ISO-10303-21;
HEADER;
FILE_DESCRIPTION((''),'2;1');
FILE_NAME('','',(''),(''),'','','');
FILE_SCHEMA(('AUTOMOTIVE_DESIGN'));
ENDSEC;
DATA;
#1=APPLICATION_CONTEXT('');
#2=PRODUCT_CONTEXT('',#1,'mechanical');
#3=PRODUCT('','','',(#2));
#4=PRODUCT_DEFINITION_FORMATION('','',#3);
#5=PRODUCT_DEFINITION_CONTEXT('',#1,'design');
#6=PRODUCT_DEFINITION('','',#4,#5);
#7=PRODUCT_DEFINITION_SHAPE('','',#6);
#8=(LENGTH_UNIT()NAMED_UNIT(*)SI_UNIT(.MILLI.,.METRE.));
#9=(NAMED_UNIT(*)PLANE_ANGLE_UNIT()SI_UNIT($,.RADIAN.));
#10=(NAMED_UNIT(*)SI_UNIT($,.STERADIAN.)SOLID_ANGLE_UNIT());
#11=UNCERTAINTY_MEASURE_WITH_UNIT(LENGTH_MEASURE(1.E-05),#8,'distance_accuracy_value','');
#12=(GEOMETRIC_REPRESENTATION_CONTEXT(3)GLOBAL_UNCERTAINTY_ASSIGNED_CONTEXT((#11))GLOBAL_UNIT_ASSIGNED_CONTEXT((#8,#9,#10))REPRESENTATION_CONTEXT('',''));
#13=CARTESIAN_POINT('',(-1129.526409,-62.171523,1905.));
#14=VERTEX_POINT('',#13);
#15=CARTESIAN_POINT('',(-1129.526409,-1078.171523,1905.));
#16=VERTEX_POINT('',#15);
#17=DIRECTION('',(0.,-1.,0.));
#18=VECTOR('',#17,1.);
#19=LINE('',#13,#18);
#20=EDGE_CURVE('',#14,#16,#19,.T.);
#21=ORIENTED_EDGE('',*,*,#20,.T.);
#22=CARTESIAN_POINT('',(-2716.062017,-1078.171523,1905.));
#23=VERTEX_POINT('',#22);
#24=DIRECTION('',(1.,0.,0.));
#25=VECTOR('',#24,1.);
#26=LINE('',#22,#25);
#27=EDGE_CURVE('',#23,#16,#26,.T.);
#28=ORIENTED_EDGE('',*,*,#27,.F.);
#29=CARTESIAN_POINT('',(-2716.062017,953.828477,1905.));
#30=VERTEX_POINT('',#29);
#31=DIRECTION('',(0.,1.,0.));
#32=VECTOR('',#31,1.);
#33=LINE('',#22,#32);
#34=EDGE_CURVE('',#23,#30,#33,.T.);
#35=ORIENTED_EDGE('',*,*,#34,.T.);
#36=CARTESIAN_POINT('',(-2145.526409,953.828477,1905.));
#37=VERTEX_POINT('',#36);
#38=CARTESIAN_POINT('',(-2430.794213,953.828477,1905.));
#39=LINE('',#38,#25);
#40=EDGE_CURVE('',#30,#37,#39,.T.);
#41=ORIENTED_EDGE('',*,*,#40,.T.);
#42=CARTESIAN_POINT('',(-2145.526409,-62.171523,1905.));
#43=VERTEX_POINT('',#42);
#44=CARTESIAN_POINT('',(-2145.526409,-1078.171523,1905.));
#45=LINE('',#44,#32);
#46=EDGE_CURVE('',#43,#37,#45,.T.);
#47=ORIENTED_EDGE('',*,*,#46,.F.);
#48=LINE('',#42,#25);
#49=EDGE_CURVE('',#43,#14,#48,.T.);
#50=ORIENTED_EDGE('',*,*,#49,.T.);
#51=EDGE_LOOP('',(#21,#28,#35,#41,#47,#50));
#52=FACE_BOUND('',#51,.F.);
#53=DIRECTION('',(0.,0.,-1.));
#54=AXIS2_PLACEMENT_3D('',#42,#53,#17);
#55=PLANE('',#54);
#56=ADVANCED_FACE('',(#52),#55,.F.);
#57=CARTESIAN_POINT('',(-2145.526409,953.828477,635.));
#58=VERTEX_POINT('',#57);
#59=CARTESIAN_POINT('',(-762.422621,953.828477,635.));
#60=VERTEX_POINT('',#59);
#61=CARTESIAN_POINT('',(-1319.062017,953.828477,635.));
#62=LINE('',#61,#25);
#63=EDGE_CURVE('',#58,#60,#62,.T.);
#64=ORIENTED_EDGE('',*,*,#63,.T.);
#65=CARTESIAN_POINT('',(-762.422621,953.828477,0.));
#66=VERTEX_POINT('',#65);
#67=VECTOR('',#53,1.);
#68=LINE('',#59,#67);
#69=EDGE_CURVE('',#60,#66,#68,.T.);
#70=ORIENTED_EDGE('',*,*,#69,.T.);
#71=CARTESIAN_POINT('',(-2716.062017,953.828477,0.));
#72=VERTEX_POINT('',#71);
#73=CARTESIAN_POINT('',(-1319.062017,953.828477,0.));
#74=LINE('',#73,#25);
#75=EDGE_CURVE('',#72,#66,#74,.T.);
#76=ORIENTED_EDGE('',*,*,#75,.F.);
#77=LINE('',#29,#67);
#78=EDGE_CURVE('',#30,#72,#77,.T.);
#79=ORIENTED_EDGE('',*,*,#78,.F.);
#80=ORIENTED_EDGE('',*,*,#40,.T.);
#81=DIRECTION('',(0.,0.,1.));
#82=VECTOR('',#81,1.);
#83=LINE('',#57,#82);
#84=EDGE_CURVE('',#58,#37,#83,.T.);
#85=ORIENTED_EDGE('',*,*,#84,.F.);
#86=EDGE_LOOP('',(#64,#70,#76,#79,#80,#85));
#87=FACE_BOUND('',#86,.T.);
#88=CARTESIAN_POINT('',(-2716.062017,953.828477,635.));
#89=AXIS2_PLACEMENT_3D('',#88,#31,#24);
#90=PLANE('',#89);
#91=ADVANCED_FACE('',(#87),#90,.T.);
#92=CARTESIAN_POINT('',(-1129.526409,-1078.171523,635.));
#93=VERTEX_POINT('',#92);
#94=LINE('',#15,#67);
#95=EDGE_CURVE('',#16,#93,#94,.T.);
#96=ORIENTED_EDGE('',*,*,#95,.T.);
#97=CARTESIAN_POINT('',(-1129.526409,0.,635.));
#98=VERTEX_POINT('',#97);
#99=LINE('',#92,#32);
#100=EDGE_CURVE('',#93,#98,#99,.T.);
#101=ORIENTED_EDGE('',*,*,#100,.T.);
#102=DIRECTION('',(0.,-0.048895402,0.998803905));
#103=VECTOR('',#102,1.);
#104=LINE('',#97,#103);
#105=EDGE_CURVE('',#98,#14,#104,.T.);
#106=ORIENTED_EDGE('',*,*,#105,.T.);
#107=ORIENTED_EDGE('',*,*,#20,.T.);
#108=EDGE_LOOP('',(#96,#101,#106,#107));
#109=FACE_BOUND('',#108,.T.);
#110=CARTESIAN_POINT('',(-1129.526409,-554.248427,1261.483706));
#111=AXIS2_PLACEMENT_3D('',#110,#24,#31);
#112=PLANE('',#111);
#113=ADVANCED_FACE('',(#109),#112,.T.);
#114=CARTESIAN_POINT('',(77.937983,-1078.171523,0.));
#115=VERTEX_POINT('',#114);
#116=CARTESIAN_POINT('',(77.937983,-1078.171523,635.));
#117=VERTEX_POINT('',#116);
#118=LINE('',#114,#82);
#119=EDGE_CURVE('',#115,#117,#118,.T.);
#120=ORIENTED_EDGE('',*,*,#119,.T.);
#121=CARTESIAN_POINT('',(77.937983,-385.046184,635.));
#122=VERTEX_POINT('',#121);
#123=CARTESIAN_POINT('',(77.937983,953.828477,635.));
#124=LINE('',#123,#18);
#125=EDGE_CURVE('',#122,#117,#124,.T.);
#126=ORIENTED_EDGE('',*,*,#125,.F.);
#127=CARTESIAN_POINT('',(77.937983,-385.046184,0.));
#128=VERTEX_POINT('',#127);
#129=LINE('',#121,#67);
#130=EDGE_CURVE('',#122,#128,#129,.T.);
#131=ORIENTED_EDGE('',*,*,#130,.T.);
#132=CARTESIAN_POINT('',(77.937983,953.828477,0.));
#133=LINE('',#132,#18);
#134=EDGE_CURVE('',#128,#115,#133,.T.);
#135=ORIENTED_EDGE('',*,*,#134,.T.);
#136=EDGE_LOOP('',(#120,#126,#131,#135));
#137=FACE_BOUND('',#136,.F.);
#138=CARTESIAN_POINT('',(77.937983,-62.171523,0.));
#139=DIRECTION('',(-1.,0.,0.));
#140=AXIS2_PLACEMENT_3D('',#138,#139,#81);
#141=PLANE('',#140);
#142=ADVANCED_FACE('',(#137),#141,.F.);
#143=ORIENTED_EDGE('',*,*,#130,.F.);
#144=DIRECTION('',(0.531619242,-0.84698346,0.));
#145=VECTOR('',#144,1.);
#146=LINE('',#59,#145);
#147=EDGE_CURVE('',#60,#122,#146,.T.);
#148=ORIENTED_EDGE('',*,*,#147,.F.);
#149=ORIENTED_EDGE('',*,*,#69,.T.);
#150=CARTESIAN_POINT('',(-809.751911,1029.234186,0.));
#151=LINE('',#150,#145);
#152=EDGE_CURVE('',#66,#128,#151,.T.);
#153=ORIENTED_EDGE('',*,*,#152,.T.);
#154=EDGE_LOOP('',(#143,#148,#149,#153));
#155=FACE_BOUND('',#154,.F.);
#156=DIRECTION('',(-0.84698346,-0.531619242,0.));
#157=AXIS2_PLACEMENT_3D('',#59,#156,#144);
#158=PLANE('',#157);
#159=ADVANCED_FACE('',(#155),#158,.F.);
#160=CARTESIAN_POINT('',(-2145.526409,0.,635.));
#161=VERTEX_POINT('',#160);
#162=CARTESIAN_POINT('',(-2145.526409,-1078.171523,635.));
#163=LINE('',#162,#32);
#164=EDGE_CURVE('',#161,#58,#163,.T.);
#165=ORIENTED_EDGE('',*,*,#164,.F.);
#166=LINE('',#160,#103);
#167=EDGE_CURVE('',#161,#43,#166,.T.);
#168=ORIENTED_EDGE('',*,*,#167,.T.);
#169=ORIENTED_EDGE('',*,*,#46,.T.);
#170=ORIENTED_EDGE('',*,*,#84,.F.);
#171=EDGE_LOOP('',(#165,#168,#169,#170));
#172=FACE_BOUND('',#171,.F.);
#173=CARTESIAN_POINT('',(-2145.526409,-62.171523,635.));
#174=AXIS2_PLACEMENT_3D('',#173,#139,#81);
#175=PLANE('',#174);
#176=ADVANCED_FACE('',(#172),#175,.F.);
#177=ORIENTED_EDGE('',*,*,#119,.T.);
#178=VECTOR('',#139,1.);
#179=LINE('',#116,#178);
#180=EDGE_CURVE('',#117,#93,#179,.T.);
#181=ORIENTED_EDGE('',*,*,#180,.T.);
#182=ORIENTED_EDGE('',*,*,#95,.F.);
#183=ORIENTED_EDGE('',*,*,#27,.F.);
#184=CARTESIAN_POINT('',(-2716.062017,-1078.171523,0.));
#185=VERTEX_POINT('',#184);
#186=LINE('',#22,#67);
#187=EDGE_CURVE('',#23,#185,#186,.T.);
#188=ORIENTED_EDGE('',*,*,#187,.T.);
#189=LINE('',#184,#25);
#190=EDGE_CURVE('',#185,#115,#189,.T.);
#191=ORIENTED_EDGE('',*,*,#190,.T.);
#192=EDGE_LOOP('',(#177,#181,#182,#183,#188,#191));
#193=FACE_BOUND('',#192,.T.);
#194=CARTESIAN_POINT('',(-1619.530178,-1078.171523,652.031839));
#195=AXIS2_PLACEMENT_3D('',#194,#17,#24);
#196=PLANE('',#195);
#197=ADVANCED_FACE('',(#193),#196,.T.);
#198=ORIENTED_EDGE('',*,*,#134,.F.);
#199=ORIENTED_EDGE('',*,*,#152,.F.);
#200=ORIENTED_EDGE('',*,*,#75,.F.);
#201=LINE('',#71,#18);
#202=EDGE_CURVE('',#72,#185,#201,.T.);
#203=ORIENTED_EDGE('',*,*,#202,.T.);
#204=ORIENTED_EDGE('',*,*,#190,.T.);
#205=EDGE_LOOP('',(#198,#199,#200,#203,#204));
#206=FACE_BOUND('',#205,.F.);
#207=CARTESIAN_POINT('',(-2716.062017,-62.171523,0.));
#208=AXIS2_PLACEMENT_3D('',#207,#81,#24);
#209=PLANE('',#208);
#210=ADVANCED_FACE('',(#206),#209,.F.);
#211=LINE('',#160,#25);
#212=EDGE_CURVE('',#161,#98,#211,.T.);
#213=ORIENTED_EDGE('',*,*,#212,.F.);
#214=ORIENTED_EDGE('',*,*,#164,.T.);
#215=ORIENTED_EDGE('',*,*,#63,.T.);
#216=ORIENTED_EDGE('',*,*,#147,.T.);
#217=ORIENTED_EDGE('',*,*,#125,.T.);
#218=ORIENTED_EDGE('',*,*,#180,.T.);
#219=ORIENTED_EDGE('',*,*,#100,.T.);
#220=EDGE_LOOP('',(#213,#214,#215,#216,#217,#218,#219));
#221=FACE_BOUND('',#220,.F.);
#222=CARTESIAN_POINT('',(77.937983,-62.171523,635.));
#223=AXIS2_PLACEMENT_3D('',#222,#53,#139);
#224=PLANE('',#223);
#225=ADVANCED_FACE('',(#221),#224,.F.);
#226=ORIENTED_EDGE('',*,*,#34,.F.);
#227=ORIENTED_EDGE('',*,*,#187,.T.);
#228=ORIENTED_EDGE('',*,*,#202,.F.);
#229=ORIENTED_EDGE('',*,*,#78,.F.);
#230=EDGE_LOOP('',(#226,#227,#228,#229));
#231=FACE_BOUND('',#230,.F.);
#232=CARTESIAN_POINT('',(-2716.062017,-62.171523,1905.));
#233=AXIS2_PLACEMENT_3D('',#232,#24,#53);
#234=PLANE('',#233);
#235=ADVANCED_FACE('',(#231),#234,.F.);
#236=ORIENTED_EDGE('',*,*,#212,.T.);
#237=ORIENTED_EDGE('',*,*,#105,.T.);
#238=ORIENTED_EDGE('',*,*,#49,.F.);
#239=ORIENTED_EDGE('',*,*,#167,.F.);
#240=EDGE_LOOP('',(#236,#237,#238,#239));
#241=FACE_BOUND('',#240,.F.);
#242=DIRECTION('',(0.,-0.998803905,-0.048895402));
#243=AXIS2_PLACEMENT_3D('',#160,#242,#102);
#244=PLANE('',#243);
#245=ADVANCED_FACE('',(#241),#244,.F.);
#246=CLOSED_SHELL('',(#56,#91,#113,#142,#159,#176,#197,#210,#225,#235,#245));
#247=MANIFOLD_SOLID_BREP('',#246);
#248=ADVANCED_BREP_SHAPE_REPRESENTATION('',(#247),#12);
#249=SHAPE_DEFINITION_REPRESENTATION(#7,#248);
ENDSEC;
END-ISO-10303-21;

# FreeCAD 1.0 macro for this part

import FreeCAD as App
import Part
import Sketcher

V = App.Vector
Q = App.Units.Quantity


def add_polygon(sketch, points):
    """Adds a closed chain of lines whose ends are joined by coincident constraints."""
    first, n = sketch.GeometryCount, len(points)
    for a, b in zip(points, points[1:] + points[:1]):
        sketch.addGeometry(Part.LineSegment(App.Vector(*a, 0), App.Vector(*b, 0)), False)
    for i in range(n):
        sketch.addConstraint(Sketcher.Constraint("Coincident", first + i, 2, first + (i + 1) % n, 1))

doc = App.newDocument("Part")
params = doc.addObject("Spreadsheet::Sheet", "Params")
for row, (alias, value) in enumerate([
    ("sketch1_width", "110 in"),
    ("sketch1_height", "40 in"),
    ("pad1_length", "25 in"),
    ("sketch2_height", "40 in"),
    ("pad2_length", "50 in"),
    ("sketch3_width", "110 in"),
    ("sketch3_height", "75 in"),
    ("sketch3_height2", "25 in"),
    ("pad3_length", "40 in"),
    ("sketch4_width", "40 in"),
    ("sketch4_height", "50 in"),
    ("pad4_length", "40 in"),
    ("pocket1_length", "100 in"),
], start=1):
    params.set(f"A{row}", alias)
    params.set(f"B{row}", "=" + value)
    params.setAlias(f"B{row}", alias)

body = doc.addObject("PartDesign::Body", "Body")

sketch1 = body.newObject("Sketcher::SketchObject", "Sketch")
sketch1.AttachmentSupport = (doc.getObject("XY_Plane"), [""])
sketch1.MapMode = "FlatFace"
add_polygon(sketch1, [(-2716, 954), (-2716, -62), (78, -62), (78, 954)])
sketch1.addConstraint([
    Sketcher.Constraint("Vertical", 0),
    Sketcher.Constraint("Horizontal", 1),
    Sketcher.Constraint("Vertical", 2),
    Sketcher.Constraint("Horizontal", 3),
    Sketcher.Constraint("DistanceX", 1, 1, 1, 2, Q("110 in")),
    Sketcher.Constraint("DistanceY", 0, 2, 0, 1, Q("40 in")),
    Sketcher.Constraint("DistanceX", 0, 2, -1, 1, Q("2716.062017 mm")),
    Sketcher.Constraint("DistanceY", 0, 2, -1, 1, Q("62.171523 mm")),
])
sketch1.setExpression("Constraints[8]", "Params.sketch1_width")
sketch1.setExpression("Constraints[9]", "Params.sketch1_height")
pad1 = body.newObject("PartDesign::Pad", "Pad")
pad1.Profile = sketch1
pad1.setExpression("Length", "Params.pad1_length")

sketch2 = body.newObject("Sketcher::SketchObject", "Sketch001")
sketch2.AttachmentSupport = (doc.getObject("XY_Plane"), [""])
sketch2.MapMode = "FlatFace"
sketch2.AttachmentOffset = App.Placement(V(0, 0, 25 * 25.4), App.Rotation())
add_polygon(sketch2, [(-2716, 954), (-2716, -62), (-2146, -62), (-2146, 954)])
sketch2.addConstraint([
    Sketcher.Constraint("Vertical", 0),
    Sketcher.Constraint("Horizontal", 1),
    Sketcher.Constraint("Vertical", 2),
    Sketcher.Constraint("Horizontal", 3),
    Sketcher.Constraint("DistanceY", 0, 2, 0, 1, Q("40 in")),
    Sketcher.Constraint("DistanceX", 1, 1, 1, 2, Q("570.535608 mm")),
    Sketcher.Constraint("DistanceX", 1, 2, -1, 1, Q("2145.526409 mm")),
    Sketcher.Constraint("DistanceY", 0, 2, -1, 1, Q("62.171523 mm")),
])
sketch2.setExpression("Constraints[8]", "Params.sketch2_height")
pad2 = body.newObject("PartDesign::Pad", "Pad001")
pad2.Profile = sketch2
pad2.setExpression("Length", "Params.pad2_length")

sketch3 = body.newObject("Sketcher::SketchObject", "Sketch002")
sketch3.AttachmentSupport = (doc.getObject("XZ_Plane"), [""])
sketch3.MapMode = "FlatFace"
sketch3.AttachmentOffset = App.Placement(V(0, 0, 62.171523), App.Rotation())
add_polygon(sketch3, [(-2716, 1905), (-2716, 0), (78, 0), (78, 635), (-2146, 635), (-2146, 1905)])
sketch3.addConstraint([
    Sketcher.Constraint("Vertical", 0),
    Sketcher.Constraint("Horizontal", 1),
    Sketcher.Constraint("Vertical", 2),
    Sketcher.Constraint("Horizontal", 3),
    Sketcher.Constraint("Vertical", 4),
    Sketcher.Constraint("Horizontal", 5),
    Sketcher.Constraint("PointOnObject", 0, 2, -1),
    Sketcher.Constraint("DistanceX", 1, 1, 1, 2, Q("110 in")),
    Sketcher.Constraint("DistanceY", 0, 2, 0, 1, Q("75 in")),
    Sketcher.Constraint("DistanceY", 2, 1, 2, 2, Q("25 in")),
    Sketcher.Constraint("DistanceX", 3, 2, 3, 1, Q("2223.464392 mm")),
    Sketcher.Constraint("DistanceX", 3, 2, -1, 1, Q("2145.526409 mm")),
])
sketch3.setExpression("Constraints[13]", "Params.sketch3_width")
sketch3.setExpression("Constraints[14]", "Params.sketch3_height")
sketch3.setExpression("Constraints[15]", "Params.sketch3_height2")
pad3 = body.newObject("PartDesign::Pad", "Pad002")
pad3.Profile = sketch3
pad3.setExpression("Length", "Params.pad3_length")

sketch4 = body.newObject("Sketcher::SketchObject", "Sketch003")
sketch4.AttachmentSupport = (doc.getObject("YZ_Plane"), [""])
sketch4.MapMode = "FlatFace"
sketch4.AttachmentOffset = App.Placement(V(0, 0, -2145.526409), App.Rotation())
add_polygon(sketch4, [(0, 635), (-62, 1905), (-1078, 1905), (-1078, 635)])
sketch4.addConstraint([
    Sketcher.Constraint("Horizontal", 1),
    Sketcher.Constraint("Vertical", 2),
    Sketcher.Constraint("Horizontal", 3),
    Sketcher.Constraint("PointOnObject", 3, 2, -2),
    Sketcher.Constraint("DistanceX", 1, 2, 1, 1, Q("40 in")),
    Sketcher.Constraint("DistanceY", 2, 2, 2, 1, Q("50 in")),
    Sketcher.Constraint("DistanceY", -1, 1, 0, 2, Q("75 in")),
    Sketcher.Constraint("Distance", 0, Q("1271.52086 mm")),
])
sketch4.setExpression("Constraints[8]", "Params.sketch4_width")
sketch4.setExpression("Constraints[9]", "Params.sketch4_height")
pad4 = body.newObject("PartDesign::Pad", "Pad003")
pad4.Profile = sketch4
pad4.setExpression("Length", "Params.pad4_length")

sketch5 = body.newObject("Sketcher::SketchObject", "Sketch004")
sketch5.AttachmentSupport = (doc.getObject("XY_Plane"), [""])
sketch5.MapMode = "FlatFace"
sketch5.AttachmentOffset = App.Placement(V(0, 0, 25 * 25.4), App.Rotation())
add_polygon(sketch5, [(78, 954), (-762, 954), (78, -385)])
sketch5.addConstraint([
    Sketcher.Constraint("Horizontal", 0),
    Sketcher.Constraint("Vertical", 2),
    Sketcher.Constraint("DistanceY", 2, 1, 2, 2, Q("1338.874661 mm")),
    Sketcher.Constraint("Distance", 1, Q("1580.75656 mm")),
    Sketcher.Constraint("DistanceX", 0, 2, -1, 1, Q("762.422621 mm")),
    Sketcher.Constraint("DistanceY", -1, 1, 0, 2, Q("953.828477 mm")),
])
pocket1 = body.newObject("PartDesign::Pocket", "Pocket")
pocket1.Profile = sketch5
pocket1.setExpression("Length", "Params.pocket1_length")

doc.recompute()
